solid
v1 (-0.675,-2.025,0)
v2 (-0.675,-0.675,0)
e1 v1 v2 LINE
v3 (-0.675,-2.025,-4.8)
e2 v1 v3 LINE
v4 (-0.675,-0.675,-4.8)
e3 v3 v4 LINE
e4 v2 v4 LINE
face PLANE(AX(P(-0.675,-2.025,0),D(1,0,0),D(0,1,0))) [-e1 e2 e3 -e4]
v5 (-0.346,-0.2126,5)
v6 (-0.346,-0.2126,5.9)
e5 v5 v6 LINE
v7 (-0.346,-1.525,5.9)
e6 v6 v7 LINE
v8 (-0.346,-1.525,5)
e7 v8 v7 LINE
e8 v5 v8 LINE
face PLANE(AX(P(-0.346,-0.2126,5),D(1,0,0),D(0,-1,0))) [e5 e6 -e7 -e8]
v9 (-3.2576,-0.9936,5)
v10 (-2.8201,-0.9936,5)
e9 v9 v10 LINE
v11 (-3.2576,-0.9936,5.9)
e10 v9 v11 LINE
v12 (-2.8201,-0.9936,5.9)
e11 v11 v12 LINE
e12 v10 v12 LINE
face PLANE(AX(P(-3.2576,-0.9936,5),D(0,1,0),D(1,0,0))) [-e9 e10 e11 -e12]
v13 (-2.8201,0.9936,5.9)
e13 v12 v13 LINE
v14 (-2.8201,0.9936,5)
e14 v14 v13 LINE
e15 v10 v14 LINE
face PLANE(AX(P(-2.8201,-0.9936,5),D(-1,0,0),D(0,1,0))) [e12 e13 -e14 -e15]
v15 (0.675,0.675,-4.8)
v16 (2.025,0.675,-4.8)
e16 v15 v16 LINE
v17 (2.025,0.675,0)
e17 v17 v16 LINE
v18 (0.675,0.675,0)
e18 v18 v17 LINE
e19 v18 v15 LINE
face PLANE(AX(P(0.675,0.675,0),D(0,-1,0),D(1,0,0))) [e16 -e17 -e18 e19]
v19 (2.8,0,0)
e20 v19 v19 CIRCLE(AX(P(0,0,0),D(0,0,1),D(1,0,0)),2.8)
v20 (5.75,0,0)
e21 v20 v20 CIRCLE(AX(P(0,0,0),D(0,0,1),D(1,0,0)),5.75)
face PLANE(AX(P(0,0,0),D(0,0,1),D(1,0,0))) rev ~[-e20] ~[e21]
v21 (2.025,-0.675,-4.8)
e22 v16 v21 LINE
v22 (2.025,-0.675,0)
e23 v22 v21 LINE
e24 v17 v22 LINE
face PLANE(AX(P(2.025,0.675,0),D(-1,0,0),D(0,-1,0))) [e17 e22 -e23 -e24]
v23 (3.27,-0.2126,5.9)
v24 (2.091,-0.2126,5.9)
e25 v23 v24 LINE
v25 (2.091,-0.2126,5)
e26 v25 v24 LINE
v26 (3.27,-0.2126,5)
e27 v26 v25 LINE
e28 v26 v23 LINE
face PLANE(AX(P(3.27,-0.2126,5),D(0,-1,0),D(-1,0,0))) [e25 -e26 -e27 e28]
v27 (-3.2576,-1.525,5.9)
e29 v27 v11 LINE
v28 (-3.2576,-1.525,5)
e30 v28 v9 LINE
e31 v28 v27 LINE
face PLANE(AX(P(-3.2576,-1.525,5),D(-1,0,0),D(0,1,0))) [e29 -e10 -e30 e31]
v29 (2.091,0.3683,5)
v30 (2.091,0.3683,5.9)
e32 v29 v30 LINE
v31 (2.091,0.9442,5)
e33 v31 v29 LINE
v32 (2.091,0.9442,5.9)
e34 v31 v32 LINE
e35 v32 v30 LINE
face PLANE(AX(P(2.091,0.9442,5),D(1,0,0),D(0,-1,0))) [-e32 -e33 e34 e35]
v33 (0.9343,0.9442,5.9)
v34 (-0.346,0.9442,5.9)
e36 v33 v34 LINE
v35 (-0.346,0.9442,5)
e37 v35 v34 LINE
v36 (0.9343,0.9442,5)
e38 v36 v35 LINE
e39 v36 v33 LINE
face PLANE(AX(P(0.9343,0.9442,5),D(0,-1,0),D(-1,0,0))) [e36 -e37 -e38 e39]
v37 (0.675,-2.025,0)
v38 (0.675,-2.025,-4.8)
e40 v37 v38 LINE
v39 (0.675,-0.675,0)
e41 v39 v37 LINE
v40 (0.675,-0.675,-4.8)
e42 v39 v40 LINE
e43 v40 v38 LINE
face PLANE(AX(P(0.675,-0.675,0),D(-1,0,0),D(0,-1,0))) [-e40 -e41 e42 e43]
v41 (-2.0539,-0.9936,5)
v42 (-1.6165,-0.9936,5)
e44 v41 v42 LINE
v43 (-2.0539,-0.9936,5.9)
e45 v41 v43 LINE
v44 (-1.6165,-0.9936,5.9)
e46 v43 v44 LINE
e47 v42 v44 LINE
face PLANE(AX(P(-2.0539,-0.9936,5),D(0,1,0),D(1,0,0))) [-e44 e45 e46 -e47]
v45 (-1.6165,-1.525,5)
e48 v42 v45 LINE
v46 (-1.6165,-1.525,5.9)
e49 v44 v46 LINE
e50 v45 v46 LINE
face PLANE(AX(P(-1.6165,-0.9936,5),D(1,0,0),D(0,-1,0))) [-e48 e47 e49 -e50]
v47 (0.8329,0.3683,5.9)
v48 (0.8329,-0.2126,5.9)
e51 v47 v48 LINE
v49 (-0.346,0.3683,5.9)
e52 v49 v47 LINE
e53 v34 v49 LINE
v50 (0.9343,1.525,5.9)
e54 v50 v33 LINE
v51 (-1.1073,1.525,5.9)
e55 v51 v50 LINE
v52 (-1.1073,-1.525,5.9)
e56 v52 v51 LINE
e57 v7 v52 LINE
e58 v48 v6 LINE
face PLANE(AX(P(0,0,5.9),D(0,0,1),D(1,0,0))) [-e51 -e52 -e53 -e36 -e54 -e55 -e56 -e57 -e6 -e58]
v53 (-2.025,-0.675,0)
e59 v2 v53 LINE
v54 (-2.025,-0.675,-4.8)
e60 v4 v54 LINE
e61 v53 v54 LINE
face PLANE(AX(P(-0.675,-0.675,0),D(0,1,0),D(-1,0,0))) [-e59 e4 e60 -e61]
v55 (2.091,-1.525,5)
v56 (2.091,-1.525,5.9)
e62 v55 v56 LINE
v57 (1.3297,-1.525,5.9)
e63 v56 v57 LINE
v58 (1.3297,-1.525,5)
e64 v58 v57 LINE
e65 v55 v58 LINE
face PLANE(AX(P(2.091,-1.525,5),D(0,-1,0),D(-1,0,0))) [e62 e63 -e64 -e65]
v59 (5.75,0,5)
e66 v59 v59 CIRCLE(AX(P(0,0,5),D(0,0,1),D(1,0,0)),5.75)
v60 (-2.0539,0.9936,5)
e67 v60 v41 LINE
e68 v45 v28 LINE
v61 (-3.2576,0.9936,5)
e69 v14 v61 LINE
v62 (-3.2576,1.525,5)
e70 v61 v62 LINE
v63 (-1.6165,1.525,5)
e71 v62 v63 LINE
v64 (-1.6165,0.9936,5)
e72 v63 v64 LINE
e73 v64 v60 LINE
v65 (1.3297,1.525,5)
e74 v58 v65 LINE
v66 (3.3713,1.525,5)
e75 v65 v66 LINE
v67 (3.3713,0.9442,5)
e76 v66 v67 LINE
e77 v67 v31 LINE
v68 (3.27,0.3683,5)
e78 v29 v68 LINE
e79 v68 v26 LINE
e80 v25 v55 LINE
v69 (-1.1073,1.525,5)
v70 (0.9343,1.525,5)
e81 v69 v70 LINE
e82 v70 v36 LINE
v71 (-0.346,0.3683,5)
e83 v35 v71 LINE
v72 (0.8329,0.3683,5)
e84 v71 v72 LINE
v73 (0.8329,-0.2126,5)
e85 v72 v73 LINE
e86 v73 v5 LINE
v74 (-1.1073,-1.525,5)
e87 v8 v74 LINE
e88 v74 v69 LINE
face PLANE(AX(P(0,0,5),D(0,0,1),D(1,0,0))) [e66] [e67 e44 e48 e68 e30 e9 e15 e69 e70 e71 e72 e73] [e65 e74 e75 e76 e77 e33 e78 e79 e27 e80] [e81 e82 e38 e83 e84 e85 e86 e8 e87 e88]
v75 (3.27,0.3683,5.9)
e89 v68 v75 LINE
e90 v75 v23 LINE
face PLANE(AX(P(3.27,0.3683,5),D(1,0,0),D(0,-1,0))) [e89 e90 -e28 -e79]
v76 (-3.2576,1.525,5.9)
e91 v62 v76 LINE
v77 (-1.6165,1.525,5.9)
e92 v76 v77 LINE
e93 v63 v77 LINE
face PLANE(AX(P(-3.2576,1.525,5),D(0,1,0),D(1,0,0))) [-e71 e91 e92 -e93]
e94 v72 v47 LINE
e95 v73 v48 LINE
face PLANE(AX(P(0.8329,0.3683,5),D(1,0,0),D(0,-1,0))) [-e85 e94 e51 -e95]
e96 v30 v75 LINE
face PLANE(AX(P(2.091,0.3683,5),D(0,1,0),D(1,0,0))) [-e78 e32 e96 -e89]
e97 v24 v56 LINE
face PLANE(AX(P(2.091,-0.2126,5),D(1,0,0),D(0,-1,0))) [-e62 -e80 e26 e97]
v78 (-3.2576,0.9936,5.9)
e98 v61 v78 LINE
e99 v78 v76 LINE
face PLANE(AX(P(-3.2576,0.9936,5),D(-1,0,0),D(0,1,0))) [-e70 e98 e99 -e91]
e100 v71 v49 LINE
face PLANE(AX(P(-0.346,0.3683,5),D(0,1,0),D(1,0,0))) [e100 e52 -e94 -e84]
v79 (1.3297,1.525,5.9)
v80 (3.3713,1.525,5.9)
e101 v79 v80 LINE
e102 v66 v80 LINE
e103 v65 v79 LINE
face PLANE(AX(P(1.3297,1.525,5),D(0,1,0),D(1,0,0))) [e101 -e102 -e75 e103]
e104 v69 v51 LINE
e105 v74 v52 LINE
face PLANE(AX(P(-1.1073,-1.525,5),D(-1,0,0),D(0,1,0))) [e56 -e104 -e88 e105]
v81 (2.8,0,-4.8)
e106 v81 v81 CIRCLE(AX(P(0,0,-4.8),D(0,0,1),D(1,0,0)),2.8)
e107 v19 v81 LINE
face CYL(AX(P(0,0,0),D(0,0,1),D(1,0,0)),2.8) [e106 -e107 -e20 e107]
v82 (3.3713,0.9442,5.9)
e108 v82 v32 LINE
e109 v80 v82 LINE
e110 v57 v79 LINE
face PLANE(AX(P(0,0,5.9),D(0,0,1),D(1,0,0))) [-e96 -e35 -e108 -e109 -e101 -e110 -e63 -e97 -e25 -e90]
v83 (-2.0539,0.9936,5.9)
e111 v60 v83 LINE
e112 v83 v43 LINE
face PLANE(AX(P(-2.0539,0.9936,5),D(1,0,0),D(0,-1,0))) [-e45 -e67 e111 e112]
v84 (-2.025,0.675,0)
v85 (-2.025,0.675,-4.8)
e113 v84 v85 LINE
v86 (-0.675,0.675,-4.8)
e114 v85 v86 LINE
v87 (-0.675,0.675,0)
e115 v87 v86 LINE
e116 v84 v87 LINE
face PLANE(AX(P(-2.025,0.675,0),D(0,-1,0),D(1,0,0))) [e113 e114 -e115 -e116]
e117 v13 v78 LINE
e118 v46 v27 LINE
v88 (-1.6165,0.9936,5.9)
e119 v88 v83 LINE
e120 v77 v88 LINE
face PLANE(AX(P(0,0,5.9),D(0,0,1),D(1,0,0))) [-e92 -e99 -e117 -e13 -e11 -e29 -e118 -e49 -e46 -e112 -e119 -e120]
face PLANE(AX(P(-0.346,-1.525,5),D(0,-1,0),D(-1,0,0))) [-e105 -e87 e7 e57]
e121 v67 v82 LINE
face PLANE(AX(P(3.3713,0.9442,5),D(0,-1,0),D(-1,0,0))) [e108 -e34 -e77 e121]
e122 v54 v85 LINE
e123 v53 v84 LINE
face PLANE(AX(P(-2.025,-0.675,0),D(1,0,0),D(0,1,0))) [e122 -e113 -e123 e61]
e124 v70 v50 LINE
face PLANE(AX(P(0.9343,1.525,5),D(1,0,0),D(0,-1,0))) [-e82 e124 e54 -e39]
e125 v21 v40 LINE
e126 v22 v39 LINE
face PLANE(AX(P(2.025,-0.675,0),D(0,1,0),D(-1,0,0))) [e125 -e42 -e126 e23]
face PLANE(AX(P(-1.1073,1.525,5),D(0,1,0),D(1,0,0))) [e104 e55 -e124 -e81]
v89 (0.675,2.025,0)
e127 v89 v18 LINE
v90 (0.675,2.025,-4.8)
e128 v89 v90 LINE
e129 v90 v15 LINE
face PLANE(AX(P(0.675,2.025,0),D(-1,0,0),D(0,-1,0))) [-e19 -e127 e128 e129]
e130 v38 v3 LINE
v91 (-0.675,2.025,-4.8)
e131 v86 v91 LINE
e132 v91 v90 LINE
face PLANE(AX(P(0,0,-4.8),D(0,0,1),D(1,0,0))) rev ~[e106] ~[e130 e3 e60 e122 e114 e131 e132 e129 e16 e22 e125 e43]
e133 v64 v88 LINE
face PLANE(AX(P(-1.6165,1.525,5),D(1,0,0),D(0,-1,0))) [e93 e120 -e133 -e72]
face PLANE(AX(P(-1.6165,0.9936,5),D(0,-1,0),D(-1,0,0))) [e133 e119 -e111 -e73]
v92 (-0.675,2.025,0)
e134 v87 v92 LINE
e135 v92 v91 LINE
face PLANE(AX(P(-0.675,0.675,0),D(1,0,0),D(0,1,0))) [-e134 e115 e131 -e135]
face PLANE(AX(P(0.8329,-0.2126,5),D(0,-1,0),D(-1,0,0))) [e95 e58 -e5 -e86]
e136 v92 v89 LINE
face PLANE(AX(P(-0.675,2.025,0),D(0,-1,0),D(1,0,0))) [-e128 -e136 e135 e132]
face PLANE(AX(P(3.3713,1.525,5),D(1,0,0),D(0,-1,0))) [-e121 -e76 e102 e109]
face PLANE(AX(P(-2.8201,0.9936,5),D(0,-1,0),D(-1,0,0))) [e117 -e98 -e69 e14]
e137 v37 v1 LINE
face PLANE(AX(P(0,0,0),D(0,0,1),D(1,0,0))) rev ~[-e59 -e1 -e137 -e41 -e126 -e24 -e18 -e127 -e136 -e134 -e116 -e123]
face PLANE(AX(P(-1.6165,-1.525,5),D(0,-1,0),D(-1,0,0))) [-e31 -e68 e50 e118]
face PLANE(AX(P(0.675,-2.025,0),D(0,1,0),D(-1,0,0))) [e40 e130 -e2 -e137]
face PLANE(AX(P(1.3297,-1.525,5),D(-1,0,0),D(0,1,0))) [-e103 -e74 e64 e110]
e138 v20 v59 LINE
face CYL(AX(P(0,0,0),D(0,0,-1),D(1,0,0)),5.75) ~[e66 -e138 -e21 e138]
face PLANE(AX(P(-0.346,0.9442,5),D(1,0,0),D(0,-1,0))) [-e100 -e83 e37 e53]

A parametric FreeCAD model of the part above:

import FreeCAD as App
import Part
import Sketcher

V = App.Vector

doc = App.newDocument("Part")
params = doc.addObject("Spreadsheet::Sheet", "Params")
for row, (alias, value) in enumerate([
    ("sketch1_diameter", "11.5 mm"),
    ("pad1_length", "5 mm"),
    ("sketch2_diameter", "5.6 mm"),
    ("sketch2_width", "1.35 mm"),
    ("pad2_length", "4.8 mm"),
    ("sketch3_height", "3.05 mm"),
    ("pad3_length", "0.9 mm"),
], start=1):
    params.set(f"A{row}", alias)
    params.set(f"B{row}", "=" + value)
    params.setAlias(f"B{row}", alias)

body = doc.addObject("PartDesign::Body", "Body")

# Sketch on XY plane
sketch1 = body.newObject("Sketcher::SketchObject", "Sketch")
sketch1.AttachmentSupport = (doc.getObject("XY_Plane"), [""])
sketch1.MapMode = "FlatFace"
sketch1.addGeometry(Part.Circle(V(0, 0, 0), V(0, 0, 1), 5.75), False)
sketch1.addConstraint([
    Sketcher.Constraint("Coincident", 0, 3, -1, 1),
    Sketcher.Constraint("Diameter", 0, 11.5),
])
sketch1.setExpression("Constraints[1]", "Params.sketch1_diameter")
pad1 = body.newObject("PartDesign::Pad", "Pad")
pad1.Profile = sketch1
pad1.setExpression("Length", "Params.pad1_length")

# Sketch on XY plane
sketch2 = body.newObject("Sketcher::SketchObject", "Sketch001")
sketch2.AttachmentSupport = (doc.getObject("XY_Plane"), [""])
sketch2.MapMode = "FlatFace"
sketch2.addGeometry([
    Part.Circle(V(0, 0, 0), V(0, 0, 1), 2.8),  # 0
    Part.LineSegment(V(-2.025, 0.675, 0), V(-0.675, 0.675, 0)),  # 1
    Part.LineSegment(V(-0.675, 0.675, 0), V(-0.675, 2.025, 0)),  # 2
    Part.LineSegment(V(-0.675, 2.025, 0), V(0.675, 2.025, 0)),  # 3
    Part.LineSegment(V(0.675, 2.025, 0), V(0.675, 0.675, 0)),  # 4
    Part.LineSegment(V(0.675, 0.675, 0), V(2.025, 0.675, 0)),  # 5
    Part.LineSegment(V(2.025, 0.675, 0), V(2.025, -0.675, 0)),  # 6
    Part.LineSegment(V(2.025, -0.675, 0), V(0.675, -0.675, 0)),  # 7
    Part.LineSegment(V(0.675, -0.675, 0), V(0.675, -2.025, 0)),  # 8
    Part.LineSegment(V(0.675, -2.025, 0), V(-0.675, -2.025, 0)),  # 9
    Part.LineSegment(V(-0.675, -2.025, 0), V(-0.675, -0.675, 0)),  # 10
    Part.LineSegment(V(-0.675, -0.675, 0), V(-2.025, -0.675, 0)),  # 11
    Part.LineSegment(V(-2.025, -0.675, 0), V(-2.025, 0.675, 0)),  # 12
], False)
sketch2.addConstraint([
    Sketcher.Constraint("Coincident", 1, 2, 2, 1),
    Sketcher.Constraint("Coincident", 2, 2, 3, 1),
    Sketcher.Constraint("Coincident", 3, 2, 4, 1),
    Sketcher.Constraint("Coincident", 4, 2, 5, 1),
    Sketcher.Constraint("Coincident", 5, 2, 6, 1),
    Sketcher.Constraint("Coincident", 6, 2, 7, 1),
    Sketcher.Constraint("Coincident", 7, 2, 8, 1),
    Sketcher.Constraint("Coincident", 8, 2, 9, 1),
    Sketcher.Constraint("Coincident", 9, 2, 10, 1),
    Sketcher.Constraint("Coincident", 10, 2, 11, 1),
    Sketcher.Constraint("Coincident", 11, 2, 12, 1),
    Sketcher.Constraint("Coincident", 12, 2, 1, 1),
    Sketcher.Constraint("Horizontal", 1),
    Sketcher.Constraint("Vertical", 2),
    Sketcher.Constraint("Horizontal", 3),
    Sketcher.Constraint("Vertical", 4),
    Sketcher.Constraint("Horizontal", 5),
    Sketcher.Constraint("Vertical", 6),
    Sketcher.Constraint("Horizontal", 7),
    Sketcher.Constraint("Vertical", 8),
    Sketcher.Constraint("Horizontal", 9),
    Sketcher.Constraint("Vertical", 10),
    Sketcher.Constraint("Horizontal", 11),
    Sketcher.Constraint("Vertical", 12),
    Sketcher.Constraint("Coincident", 0, 3, -1, 1),
    Sketcher.Constraint("Symmetric", 1, 2, 7, 2, -1, 1),
    Sketcher.Constraint("Symmetric", 3, 2, 9, 2, -1, 1),
    Sketcher.Constraint("Symmetric", 5, 2, 11, 2, -1, 1),
    Sketcher.Constraint("Symmetric", 1, 2, 4, 2, -2),
    Sketcher.Constraint("Equal", 1, 3),
    Sketcher.Constraint("Equal", 11, 2),
    Sketcher.Constraint("Equal", 4, 6),
    Sketcher.Constraint("Diameter", 0, 5.6),
    Sketcher.Constraint("DistanceX", 1, 1, 1, 2, 1.35),
])
sketch2.setExpression("Constraints[32]", "Params.sketch2_diameter")
sketch2.setExpression("Constraints[33]", "Params.sketch2_width")
pad2 = body.newObject("PartDesign::Pad", "Pad001")
pad2.Profile = sketch2
pad2.setExpression("Length", "Params.pad2_length")
pad2.Reversed = True

# Sketch on XY plane
sketch3 = body.newObject("Sketcher::SketchObject", "Sketch002")
sketch3.AttachmentSupport = (doc.getObject("XY_Plane"), [""])
sketch3.MapMode = "FlatFace"
sketch3.AttachmentOffset = App.Placement(V(0, 0, 5), App.Rotation())
sketch3.addGeometry([
    Part.LineSegment(V(-3.2576, -1.525, 0), V(-1.6165, -1.525, 0)),  # 0
    Part.LineSegment(V(-1.6165, -1.525, 0), V(-1.6165, -0.9936, 0)),  # 1
    Part.LineSegment(V(-1.6165, -0.9936, 0), V(-2.0539, -0.9936, 0)),  # 2
    Part.LineSegment(V(-2.0539, -0.9936, 0), V(-2.0539, 0.9936, 0)),  # 3
    Part.LineSegment(V(-2.0539, 0.9936, 0), V(-1.6165, 0.9936, 0)),  # 4
    Part.LineSegment(V(-1.6165, 0.9936, 0), V(-1.6165, 1.525, 0)),  # 5
    Part.LineSegment(V(-1.6165, 1.525, 0), V(-3.2576, 1.525, 0)),  # 6
    Part.LineSegment(V(-3.2576, 1.525, 0), V(-3.2576, 0.9936, 0)),  # 7
    Part.LineSegment(V(-3.2576, 0.9936, 0), V(-2.8201, 0.9936, 0)),  # 8
    Part.LineSegment(V(-2.8201, 0.9936, 0), V(-2.8201, -0.9936, 0)),  # 9
    Part.LineSegment(V(-2.8201, -0.9936, 0), V(-3.2576, -0.9936, 0)),  # 10
    Part.LineSegment(V(-3.2576, -0.9936, 0), V(-3.2576, -1.525, 0)),  # 11
    Part.LineSegment(V(-0.346, 0.9442, 0), V(0.9343, 0.9442, 0)),  # 12
    Part.LineSegment(V(0.9343, 0.9442, 0), V(0.9343, 1.525, 0)),  # 13
    Part.LineSegment(V(0.9343, 1.525, 0), V(-1.1073, 1.525, 0)),  # 14
    Part.LineSegment(V(-1.1073, 1.525, 0), V(-1.1073, -1.525, 0)),  # 15
    Part.LineSegment(V(-1.1073, -1.525, 0), V(-0.346, -1.525, 0)),  # 16
    Part.LineSegment(V(-0.346, -1.525, 0), V(-0.346, -0.2126, 0)),  # 17
    Part.LineSegment(V(-0.346, -0.2126, 0), V(0.8329, -0.2126, 0)),  # 18
    Part.LineSegment(V(0.8329, -0.2126, 0), V(0.8329, 0.3683, 0)),  # 19
    Part.LineSegment(V(0.8329, 0.3683, 0), V(-0.346, 0.3683, 0)),  # 20
    Part.LineSegment(V(-0.346, 0.3683, 0), V(-0.346, 0.9442, 0)),  # 21
    Part.LineSegment(V(2.091, 0.9442, 0), V(3.3713, 0.9442, 0)),  # 22
    Part.LineSegment(V(3.3713, 0.9442, 0), V(3.3713, 1.525, 0)),  # 23
    Part.LineSegment(V(3.3713, 1.525, 0), V(1.3297, 1.525, 0)),  # 24
    Part.LineSegment(V(1.3297, 1.525, 0), V(1.3297, -1.525, 0)),  # 25
    Part.LineSegment(V(1.3297, -1.525, 0), V(2.091, -1.525, 0)),  # 26
    Part.LineSegment(V(2.091, -1.525, 0), V(2.091, -0.2126, 0)),  # 27
    Part.LineSegment(V(2.091, -0.2126, 0), V(3.27, -0.2126, 0)),  # 28
    Part.LineSegment(V(3.27, -0.2126, 0), V(3.27, 0.3683, 0)),  # 29
    Part.LineSegment(V(3.27, 0.3683, 0), V(2.091, 0.3683, 0)),  # 30
    Part.LineSegment(V(2.091, 0.3683, 0), V(2.091, 0.9442, 0)),  # 31
], False)
sketch3.addConstraint([
    Sketcher.Constraint("Coincident", 0, 2, 1, 1),
    Sketcher.Constraint("Coincident", 1, 2, 2, 1),
    Sketcher.Constraint("Coincident", 2, 2, 3, 1),
    Sketcher.Constraint("Coincident", 3, 2, 4, 1),
    Sketcher.Constraint("Coincident", 4, 2, 5, 1),
    Sketcher.Constraint("Coincident", 5, 2, 6, 1),
    Sketcher.Constraint("Coincident", 6, 2, 7, 1),
    Sketcher.Constraint("Coincident", 7, 2, 8, 1),
    Sketcher.Constraint("Coincident", 8, 2, 9, 1),
    Sketcher.Constraint("Coincident", 9, 2, 10, 1),
    Sketcher.Constraint("Coincident", 10, 2, 11, 1),
    Sketcher.Constraint("Coincident", 11, 2, 0, 1),
    Sketcher.Constraint("Coincident", 12, 2, 13, 1),
    Sketcher.Constraint("Coincident", 13, 2, 14, 1),
    Sketcher.Constraint("Coincident", 14, 2, 15, 1),
    Sketcher.Constraint("Coincident", 15, 2, 16, 1),
    Sketcher.Constraint("Coincident", 16, 2, 17, 1),
    Sketcher.Constraint("Coincident", 17, 2, 18, 1),
    Sketcher.Constraint("Coincident", 18, 2, 19, 1),
    Sketcher.Constraint("Coincident", 19, 2, 20, 1),
    Sketcher.Constraint("Coincident", 20, 2, 21, 1),
    Sketcher.Constraint("Coincident", 21, 2, 12, 1),
    Sketcher.Constraint("Coincident", 22, 2, 23, 1),
    Sketcher.Constraint("Coincident", 23, 2, 24, 1),
    Sketcher.Constraint("Coincident", 24, 2, 25, 1),
    Sketcher.Constraint("Coincident", 25, 2, 26, 1),
    Sketcher.Constraint("Coincident", 26, 2, 27, 1),
    Sketcher.Constraint("Coincident", 27, 2, 28, 1),
    Sketcher.Constraint("Coincident", 28, 2, 29, 1),
    Sketcher.Constraint("Coincident", 29, 2, 30, 1),
    Sketcher.Constraint("Coincident", 30, 2, 31, 1),
    Sketcher.Constraint("Coincident", 31, 2, 22, 1),
    Sketcher.Constraint("Horizontal", 0),
    Sketcher.Constraint("Vertical", 1),
    Sketcher.Constraint("Horizontal", 2),
    Sketcher.Constraint("Vertical", 3),
    Sketcher.Constraint("Horizontal", 4),
    Sketcher.Constraint("Vertical", 5),
    Sketcher.Constraint("Horizontal", 6),
    Sketcher.Constraint("Vertical", 7),
    Sketcher.Constraint("Horizontal", 8),
    Sketcher.Constraint("Vertical", 9),
    Sketcher.Constraint("Horizontal", 10),
    Sketcher.Constraint("Vertical", 11),
    Sketcher.Constraint("Horizontal", 12),
    Sketcher.Constraint("Vertical", 13),
    Sketcher.Constraint("Horizontal", 14),
    Sketcher.Constraint("Vertical", 15),
    Sketcher.Constraint("Horizontal", 16),
    Sketcher.Constraint("Vertical", 17),
    Sketcher.Constraint("Horizontal", 18),
    Sketcher.Constraint("Vertical", 19),
    Sketcher.Constraint("Horizontal", 20),
    Sketcher.Constraint("Vertical", 21),
    Sketcher.Constraint("Horizontal", 22),
    Sketcher.Constraint("Vertical", 23),
    Sketcher.Constraint("Horizontal", 24),
    Sketcher.Constraint("Vertical", 25),
    Sketcher.Constraint("Horizontal", 26),
    Sketcher.Constraint("Vertical", 27),
    Sketcher.Constraint("Horizontal", 28),
    Sketcher.Constraint("Vertical", 29),
    Sketcher.Constraint("Horizontal", 30),
    Sketcher.Constraint("Vertical", 31),
    Sketcher.Constraint("Symmetric", 1, 2, 4, 2, -1),
    Sketcher.Constraint("Symmetric", 7, 2, 10, 2, -1),
    Sketcher.Constraint("Horizontal", 4, 2, 7, 2),
    Sketcher.Constraint("Horizontal", 6, 2, 13, 2),
    Sketcher.Constraint("Horizontal", 11, 2, 15, 2),
    Sketcher.Constraint("Horizontal", 21, 2, 22, 2),
    Sketcher.Constraint("Horizontal", 14, 2, 23, 2),
    Sketcher.Constraint("Horizontal", 16, 2, 25, 2),
    Sketcher.Constraint("Horizontal", 18, 2, 27, 2),
    Sketcher.Constraint("Horizontal", 20, 2, 29, 2),
    Sketcher.Constraint("Vertical", 17, 2, 20, 2),
    Sketcher.Constraint("Vertical", 27, 2, 30, 2),
    Sketcher.Constraint("Equal", 4, 8),
    Sketcher.Constraint("Equal", 12, 22),
    Sketcher.Constraint("Equal", 14, 24),
    Sketcher.Constraint("Equal", 20, 28),
    Sketcher.Constraint("Equal", 1, 5),
    Sketcher.Constraint("Equal", 13, 19),
    Sketcher.Constraint("DistanceY", 15, 2, 15, 1, 3.05),
    Sketcher.Constraint("DistanceX", 0, 1, 0, 2, 1.641),
    Sketcher.Constraint("DistanceX", 18, 1, 18, 2, 1.179),
    Sketcher.Constraint("DistanceY", 19, 1, 19, 2, 0.581),
    Sketcher.Constraint("DistanceY", 21, 1, 21, 2, 0.576),
    Sketcher.Constraint("DistanceX", 8, 2, -1, 1, 2.82),
    Sketcher.Constraint("DistanceX", -1, 1, 28, 2, 3.27),
    Sketcher.Constraint("DistanceX", 2, 2, 2, 1, 0.4374),
    Sketcher.Constraint("DistanceX", 12, 1, 12, 2, 1.2803),
    Sketcher.Constraint("DistanceX", 14, 2, 14, 1, 2.0416),
    Sketcher.Constraint("DistanceY", 1, 1, 1, 2, 0.5314),
    Sketcher.Constraint("DistanceX", 16, 2, -1, 1, 0.346),
])
sketch3.setExpression("Constraints[82]", "Params.sketch3_height")
pad3 = body.newObject("PartDesign::Pad", "Pad002")
pad3.Profile = sketch3
pad3.setExpression("Length", "Params.pad3_length")

doc.recompute()
